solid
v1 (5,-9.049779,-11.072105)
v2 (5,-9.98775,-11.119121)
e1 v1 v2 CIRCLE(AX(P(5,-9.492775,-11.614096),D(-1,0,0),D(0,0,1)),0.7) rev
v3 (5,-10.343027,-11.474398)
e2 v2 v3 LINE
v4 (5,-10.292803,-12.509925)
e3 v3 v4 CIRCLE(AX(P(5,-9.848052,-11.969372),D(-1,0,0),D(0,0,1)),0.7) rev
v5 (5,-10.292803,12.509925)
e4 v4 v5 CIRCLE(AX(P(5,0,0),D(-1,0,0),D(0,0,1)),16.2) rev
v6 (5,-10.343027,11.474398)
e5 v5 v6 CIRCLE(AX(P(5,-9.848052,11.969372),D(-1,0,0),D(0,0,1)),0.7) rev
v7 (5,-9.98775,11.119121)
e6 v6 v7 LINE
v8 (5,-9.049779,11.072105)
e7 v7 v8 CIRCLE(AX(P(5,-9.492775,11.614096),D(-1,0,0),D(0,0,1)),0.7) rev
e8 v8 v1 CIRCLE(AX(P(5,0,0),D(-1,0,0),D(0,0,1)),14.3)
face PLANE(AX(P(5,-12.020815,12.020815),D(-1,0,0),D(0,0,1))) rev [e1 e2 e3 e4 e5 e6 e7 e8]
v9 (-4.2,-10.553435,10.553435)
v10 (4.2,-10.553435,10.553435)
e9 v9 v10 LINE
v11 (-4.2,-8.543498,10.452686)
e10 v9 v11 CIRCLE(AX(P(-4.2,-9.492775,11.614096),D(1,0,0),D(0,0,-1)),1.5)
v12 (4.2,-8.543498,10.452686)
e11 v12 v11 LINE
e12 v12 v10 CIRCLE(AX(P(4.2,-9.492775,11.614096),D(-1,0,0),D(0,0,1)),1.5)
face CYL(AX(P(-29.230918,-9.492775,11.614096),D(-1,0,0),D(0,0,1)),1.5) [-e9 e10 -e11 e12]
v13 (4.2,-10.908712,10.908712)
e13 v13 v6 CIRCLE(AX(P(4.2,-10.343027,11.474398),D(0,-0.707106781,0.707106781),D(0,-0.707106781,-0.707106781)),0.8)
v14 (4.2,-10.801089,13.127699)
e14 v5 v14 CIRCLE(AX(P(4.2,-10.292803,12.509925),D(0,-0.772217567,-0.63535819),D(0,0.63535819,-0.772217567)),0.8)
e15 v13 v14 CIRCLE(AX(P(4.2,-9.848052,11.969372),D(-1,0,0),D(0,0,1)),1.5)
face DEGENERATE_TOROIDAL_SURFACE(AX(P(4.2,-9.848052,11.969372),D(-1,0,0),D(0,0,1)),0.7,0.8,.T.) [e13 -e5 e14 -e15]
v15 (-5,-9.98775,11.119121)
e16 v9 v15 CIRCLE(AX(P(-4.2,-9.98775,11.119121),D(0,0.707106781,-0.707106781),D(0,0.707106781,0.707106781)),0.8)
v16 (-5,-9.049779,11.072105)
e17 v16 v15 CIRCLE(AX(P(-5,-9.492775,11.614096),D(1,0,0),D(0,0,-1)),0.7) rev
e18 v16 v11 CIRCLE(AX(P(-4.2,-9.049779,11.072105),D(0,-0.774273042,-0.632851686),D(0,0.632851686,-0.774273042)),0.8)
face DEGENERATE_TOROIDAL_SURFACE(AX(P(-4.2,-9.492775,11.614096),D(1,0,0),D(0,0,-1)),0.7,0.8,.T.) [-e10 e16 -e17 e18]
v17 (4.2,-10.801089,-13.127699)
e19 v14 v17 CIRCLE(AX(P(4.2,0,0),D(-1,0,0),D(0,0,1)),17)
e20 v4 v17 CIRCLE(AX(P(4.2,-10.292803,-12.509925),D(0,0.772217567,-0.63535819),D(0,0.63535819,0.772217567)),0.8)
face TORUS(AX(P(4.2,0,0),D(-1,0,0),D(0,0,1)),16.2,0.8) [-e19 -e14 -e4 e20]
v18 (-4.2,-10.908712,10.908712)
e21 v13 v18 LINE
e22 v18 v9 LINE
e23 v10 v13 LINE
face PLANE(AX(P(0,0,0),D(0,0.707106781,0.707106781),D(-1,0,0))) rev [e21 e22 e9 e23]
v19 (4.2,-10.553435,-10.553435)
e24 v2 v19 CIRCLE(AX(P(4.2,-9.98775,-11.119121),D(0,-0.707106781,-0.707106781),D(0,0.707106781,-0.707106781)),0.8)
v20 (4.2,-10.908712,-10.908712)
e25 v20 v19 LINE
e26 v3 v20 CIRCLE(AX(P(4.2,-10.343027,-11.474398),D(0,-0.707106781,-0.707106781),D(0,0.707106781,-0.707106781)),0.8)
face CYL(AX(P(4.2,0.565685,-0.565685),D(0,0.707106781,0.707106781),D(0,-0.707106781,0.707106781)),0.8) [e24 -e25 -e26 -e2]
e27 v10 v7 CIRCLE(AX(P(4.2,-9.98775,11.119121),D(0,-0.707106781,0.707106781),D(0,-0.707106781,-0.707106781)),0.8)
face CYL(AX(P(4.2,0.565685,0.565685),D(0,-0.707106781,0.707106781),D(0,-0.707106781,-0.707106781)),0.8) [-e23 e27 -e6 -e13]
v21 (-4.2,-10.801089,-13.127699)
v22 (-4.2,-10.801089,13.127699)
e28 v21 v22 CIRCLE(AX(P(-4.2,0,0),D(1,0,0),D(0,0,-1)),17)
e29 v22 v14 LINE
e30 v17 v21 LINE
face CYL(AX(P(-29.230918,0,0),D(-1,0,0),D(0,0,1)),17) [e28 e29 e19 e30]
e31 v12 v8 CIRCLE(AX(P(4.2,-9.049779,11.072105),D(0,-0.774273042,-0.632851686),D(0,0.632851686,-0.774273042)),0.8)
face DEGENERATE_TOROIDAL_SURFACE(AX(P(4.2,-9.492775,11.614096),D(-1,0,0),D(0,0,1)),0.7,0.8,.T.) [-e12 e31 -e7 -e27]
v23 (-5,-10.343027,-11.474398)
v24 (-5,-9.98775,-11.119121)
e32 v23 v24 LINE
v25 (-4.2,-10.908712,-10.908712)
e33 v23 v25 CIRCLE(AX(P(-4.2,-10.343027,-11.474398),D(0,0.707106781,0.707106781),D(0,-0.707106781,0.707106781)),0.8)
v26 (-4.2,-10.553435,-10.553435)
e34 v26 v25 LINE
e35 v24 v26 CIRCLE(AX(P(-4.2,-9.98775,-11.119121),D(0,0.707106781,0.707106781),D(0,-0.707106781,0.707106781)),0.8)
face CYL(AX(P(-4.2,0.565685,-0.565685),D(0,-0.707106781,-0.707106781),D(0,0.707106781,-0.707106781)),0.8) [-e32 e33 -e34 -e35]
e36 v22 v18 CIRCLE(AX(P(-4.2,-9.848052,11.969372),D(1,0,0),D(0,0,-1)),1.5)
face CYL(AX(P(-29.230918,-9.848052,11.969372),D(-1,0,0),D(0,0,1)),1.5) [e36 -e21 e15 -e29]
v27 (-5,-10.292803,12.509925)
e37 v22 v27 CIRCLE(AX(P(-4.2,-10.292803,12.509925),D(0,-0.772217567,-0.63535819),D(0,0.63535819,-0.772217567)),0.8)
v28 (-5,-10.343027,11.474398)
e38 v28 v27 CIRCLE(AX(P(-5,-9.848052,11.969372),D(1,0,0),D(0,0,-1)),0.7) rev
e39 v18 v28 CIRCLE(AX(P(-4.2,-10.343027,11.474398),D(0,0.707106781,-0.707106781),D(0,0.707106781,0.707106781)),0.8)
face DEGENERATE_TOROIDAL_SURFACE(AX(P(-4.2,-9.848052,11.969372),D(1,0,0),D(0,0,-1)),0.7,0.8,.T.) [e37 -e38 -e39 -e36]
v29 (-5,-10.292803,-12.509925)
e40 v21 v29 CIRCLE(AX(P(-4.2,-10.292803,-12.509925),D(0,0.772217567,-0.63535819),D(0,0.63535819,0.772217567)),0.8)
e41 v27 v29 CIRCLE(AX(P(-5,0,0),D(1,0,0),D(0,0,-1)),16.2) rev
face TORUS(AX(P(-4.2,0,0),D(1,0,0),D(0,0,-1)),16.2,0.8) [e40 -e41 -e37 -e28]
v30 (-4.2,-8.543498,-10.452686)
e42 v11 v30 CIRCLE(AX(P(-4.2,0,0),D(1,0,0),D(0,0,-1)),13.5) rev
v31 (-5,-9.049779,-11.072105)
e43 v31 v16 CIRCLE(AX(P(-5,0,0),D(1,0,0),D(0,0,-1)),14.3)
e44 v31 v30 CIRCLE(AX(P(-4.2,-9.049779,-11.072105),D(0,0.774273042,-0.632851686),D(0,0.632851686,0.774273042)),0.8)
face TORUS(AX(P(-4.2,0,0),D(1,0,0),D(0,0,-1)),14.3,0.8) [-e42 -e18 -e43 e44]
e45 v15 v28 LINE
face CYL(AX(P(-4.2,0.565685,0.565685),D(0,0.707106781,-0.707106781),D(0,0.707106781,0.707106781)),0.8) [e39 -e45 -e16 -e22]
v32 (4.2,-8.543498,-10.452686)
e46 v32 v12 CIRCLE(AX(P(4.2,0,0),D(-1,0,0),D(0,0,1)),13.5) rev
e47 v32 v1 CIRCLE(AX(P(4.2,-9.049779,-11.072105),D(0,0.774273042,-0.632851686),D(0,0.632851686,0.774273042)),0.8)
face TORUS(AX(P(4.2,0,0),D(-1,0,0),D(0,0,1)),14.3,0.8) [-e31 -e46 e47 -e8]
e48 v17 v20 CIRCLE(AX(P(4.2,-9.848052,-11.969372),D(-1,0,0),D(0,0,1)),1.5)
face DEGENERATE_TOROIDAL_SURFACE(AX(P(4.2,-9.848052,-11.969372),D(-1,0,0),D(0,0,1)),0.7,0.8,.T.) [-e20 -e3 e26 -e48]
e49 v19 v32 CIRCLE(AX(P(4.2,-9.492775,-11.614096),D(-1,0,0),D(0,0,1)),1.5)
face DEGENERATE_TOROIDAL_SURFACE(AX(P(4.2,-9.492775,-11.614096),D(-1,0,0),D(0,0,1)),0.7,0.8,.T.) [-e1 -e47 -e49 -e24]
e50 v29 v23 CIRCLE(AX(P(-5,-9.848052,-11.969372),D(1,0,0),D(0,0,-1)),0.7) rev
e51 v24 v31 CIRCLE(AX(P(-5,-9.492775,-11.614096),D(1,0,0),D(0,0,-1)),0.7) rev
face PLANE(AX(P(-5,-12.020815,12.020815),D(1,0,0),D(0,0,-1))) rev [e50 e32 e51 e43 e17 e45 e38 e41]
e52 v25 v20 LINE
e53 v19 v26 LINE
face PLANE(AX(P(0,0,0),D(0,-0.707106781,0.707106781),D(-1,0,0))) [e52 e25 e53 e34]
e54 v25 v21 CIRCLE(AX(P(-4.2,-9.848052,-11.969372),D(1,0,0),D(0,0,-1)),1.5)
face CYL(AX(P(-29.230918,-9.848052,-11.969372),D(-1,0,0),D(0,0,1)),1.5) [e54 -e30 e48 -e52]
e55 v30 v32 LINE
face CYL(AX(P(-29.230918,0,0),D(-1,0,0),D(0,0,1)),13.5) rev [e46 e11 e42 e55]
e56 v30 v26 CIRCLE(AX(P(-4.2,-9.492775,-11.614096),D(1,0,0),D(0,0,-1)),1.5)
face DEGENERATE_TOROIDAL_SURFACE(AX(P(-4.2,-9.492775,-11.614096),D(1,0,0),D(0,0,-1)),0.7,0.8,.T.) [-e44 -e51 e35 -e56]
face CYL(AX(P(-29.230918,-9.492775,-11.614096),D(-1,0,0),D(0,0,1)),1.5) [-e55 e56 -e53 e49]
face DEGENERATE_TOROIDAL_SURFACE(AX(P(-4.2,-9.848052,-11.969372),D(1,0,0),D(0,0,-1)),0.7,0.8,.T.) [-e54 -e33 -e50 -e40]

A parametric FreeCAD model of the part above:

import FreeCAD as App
import Part
import Sketcher
Q = App.Units.Quantity


def edges_at(feature, points):
    """Names of the edges that pass closest to the given points."""
    edges = feature.Shape.Edges
    near = lambda p: min(range(len(edges)), key=lambda i: edges[i].distToShape(Part.Vertex(*p))[0])
    return sorted({f"Edge{near(p) + 1}" for p in points})


def add_polygon(sketch, points):
    """Adds a closed chain of lines whose ends are joined by coincident constraints."""
    first, n = sketch.GeometryCount, len(points)
    for a, b in zip(points, points[1:] + points[:1]):
        sketch.addGeometry(Part.LineSegment(App.Vector(*a, 0), App.Vector(*b, 0)), False)
    for i in range(n):
        sketch.addConstraint(Sketcher.Constraint("Coincident", first + i, 2, first + (i + 1) % n, 1))

doc = App.newDocument("Part")
body = doc.addObject("PartDesign::Body", "Body")

# Sketch on XY plane
sketch1 = doc.addObject("Sketcher::SketchObject", "Sketch")
body.addObject(sketch1)
sketch1.AttachmentSupport = (doc.XY_Plane, [""])
sketch1.MapMode = "FlatFace"
add_polygon(sketch1, [(-5, 17), (-5, 13.5), (5, 13.5), (5, 17)])  # lines 0-3
sketch1.addConstraint([
    Sketcher.Constraint("Vertical", 0),
    Sketcher.Constraint("Horizontal", 1),
    Sketcher.Constraint("Vertical", 2),
    Sketcher.Constraint("Horizontal", 3),
    Sketcher.Constraint("DistanceX", 1, 1, 1, 2, Q("10 mm")),
    Sketcher.Constraint("DistanceY", 0, 2, 0, 1, Q("3.5 mm")),
    Sketcher.Constraint("DistanceX", 0, 2, -1, 1, Q("5 mm")),
    Sketcher.Constraint("DistanceY", -1, 1, 2, 2, Q("17 mm")),
])
revolution = doc.addObject("PartDesign::Revolution", "Revolution")
body.addObject(revolution)
revolution.Profile = sketch1
revolution.ReferenceAxis = (sketch1, ["H_Axis"])
revolution.Angle = 135

# Sketch on XY plane
sketch2 = doc.addObject("Sketcher::SketchObject", "Sketch001")
body.addObject(sketch2)
sketch2.AttachmentSupport = (doc.XY_Plane, [""])
sketch2.MapMode = "FlatFace"
add_polygon(sketch2, [(-5, 17), (-5, 13.5), (5, 13.5), (5, 17)])  # lines 0-3
sketch2.addConstraint([
    Sketcher.Constraint("Vertical", 0),
    Sketcher.Constraint("Horizontal", 1),
    Sketcher.Constraint("Vertical", 2),
    Sketcher.Constraint("Horizontal", 3),
    Sketcher.Constraint("DistanceX", 1, 1, 1, 2, Q("10 mm")),
    Sketcher.Constraint("DistanceY", 0, 2, 0, 1, Q("3.5 mm")),
    Sketcher.Constraint("DistanceX", 0, 2, -1, 1, Q("5 mm")),
    Sketcher.Constraint("DistanceY", -1, 1, 2, 2, Q("17 mm")),
])
revolution2 = doc.addObject("PartDesign::Revolution", "Revolution001")
body.addObject(revolution2)
revolution2.Profile = sketch2
revolution2.ReferenceAxis = (sketch2, ["H_Axis"])
revolution2.Angle = 135
revolution2.Reversed = True
doc.recompute()

fillet = doc.addObject("PartDesign::Fillet", "Fillet")
body.addObject(fillet)
fillet.Base = (revolution2, edges_at(revolution2, [
    (0, -9.546, 9.546),
    (0, -12.021, -12.021),
    (0, -9.546, -9.546),
    (0, -12.021, 12.021),
]))
fillet.Radius = 1.5
doc.recompute()

fillet2 = doc.addObject("PartDesign::Fillet", "Fillet001")
body.addObject(fillet2)
fillet2.Base = (fillet, edges_at(fillet, [
    (5, 17, 0),
    (-5, 17, 0),
    (-5, -10.731, -10.731),
    (-5, 13.5, 0),
    (-5, -10.731, 10.731),
    (-5, -11.346, 12.042),
    (-5, -9.568, 10.116),
    (-5, -9.568, -10.116),
    (-5, -11.346, -12.042),
    (5, -10.731, -10.731),
    (5, 13.5, 0),
    (5, -10.731, 10.731),
    (5, -11.346, 12.042),
    (5, -9.568, 10.116),
    (5, -9.568, -10.116),
    (5, -11.346, -12.042),
]))
fillet2.Radius = 0.8

doc.recompute()
